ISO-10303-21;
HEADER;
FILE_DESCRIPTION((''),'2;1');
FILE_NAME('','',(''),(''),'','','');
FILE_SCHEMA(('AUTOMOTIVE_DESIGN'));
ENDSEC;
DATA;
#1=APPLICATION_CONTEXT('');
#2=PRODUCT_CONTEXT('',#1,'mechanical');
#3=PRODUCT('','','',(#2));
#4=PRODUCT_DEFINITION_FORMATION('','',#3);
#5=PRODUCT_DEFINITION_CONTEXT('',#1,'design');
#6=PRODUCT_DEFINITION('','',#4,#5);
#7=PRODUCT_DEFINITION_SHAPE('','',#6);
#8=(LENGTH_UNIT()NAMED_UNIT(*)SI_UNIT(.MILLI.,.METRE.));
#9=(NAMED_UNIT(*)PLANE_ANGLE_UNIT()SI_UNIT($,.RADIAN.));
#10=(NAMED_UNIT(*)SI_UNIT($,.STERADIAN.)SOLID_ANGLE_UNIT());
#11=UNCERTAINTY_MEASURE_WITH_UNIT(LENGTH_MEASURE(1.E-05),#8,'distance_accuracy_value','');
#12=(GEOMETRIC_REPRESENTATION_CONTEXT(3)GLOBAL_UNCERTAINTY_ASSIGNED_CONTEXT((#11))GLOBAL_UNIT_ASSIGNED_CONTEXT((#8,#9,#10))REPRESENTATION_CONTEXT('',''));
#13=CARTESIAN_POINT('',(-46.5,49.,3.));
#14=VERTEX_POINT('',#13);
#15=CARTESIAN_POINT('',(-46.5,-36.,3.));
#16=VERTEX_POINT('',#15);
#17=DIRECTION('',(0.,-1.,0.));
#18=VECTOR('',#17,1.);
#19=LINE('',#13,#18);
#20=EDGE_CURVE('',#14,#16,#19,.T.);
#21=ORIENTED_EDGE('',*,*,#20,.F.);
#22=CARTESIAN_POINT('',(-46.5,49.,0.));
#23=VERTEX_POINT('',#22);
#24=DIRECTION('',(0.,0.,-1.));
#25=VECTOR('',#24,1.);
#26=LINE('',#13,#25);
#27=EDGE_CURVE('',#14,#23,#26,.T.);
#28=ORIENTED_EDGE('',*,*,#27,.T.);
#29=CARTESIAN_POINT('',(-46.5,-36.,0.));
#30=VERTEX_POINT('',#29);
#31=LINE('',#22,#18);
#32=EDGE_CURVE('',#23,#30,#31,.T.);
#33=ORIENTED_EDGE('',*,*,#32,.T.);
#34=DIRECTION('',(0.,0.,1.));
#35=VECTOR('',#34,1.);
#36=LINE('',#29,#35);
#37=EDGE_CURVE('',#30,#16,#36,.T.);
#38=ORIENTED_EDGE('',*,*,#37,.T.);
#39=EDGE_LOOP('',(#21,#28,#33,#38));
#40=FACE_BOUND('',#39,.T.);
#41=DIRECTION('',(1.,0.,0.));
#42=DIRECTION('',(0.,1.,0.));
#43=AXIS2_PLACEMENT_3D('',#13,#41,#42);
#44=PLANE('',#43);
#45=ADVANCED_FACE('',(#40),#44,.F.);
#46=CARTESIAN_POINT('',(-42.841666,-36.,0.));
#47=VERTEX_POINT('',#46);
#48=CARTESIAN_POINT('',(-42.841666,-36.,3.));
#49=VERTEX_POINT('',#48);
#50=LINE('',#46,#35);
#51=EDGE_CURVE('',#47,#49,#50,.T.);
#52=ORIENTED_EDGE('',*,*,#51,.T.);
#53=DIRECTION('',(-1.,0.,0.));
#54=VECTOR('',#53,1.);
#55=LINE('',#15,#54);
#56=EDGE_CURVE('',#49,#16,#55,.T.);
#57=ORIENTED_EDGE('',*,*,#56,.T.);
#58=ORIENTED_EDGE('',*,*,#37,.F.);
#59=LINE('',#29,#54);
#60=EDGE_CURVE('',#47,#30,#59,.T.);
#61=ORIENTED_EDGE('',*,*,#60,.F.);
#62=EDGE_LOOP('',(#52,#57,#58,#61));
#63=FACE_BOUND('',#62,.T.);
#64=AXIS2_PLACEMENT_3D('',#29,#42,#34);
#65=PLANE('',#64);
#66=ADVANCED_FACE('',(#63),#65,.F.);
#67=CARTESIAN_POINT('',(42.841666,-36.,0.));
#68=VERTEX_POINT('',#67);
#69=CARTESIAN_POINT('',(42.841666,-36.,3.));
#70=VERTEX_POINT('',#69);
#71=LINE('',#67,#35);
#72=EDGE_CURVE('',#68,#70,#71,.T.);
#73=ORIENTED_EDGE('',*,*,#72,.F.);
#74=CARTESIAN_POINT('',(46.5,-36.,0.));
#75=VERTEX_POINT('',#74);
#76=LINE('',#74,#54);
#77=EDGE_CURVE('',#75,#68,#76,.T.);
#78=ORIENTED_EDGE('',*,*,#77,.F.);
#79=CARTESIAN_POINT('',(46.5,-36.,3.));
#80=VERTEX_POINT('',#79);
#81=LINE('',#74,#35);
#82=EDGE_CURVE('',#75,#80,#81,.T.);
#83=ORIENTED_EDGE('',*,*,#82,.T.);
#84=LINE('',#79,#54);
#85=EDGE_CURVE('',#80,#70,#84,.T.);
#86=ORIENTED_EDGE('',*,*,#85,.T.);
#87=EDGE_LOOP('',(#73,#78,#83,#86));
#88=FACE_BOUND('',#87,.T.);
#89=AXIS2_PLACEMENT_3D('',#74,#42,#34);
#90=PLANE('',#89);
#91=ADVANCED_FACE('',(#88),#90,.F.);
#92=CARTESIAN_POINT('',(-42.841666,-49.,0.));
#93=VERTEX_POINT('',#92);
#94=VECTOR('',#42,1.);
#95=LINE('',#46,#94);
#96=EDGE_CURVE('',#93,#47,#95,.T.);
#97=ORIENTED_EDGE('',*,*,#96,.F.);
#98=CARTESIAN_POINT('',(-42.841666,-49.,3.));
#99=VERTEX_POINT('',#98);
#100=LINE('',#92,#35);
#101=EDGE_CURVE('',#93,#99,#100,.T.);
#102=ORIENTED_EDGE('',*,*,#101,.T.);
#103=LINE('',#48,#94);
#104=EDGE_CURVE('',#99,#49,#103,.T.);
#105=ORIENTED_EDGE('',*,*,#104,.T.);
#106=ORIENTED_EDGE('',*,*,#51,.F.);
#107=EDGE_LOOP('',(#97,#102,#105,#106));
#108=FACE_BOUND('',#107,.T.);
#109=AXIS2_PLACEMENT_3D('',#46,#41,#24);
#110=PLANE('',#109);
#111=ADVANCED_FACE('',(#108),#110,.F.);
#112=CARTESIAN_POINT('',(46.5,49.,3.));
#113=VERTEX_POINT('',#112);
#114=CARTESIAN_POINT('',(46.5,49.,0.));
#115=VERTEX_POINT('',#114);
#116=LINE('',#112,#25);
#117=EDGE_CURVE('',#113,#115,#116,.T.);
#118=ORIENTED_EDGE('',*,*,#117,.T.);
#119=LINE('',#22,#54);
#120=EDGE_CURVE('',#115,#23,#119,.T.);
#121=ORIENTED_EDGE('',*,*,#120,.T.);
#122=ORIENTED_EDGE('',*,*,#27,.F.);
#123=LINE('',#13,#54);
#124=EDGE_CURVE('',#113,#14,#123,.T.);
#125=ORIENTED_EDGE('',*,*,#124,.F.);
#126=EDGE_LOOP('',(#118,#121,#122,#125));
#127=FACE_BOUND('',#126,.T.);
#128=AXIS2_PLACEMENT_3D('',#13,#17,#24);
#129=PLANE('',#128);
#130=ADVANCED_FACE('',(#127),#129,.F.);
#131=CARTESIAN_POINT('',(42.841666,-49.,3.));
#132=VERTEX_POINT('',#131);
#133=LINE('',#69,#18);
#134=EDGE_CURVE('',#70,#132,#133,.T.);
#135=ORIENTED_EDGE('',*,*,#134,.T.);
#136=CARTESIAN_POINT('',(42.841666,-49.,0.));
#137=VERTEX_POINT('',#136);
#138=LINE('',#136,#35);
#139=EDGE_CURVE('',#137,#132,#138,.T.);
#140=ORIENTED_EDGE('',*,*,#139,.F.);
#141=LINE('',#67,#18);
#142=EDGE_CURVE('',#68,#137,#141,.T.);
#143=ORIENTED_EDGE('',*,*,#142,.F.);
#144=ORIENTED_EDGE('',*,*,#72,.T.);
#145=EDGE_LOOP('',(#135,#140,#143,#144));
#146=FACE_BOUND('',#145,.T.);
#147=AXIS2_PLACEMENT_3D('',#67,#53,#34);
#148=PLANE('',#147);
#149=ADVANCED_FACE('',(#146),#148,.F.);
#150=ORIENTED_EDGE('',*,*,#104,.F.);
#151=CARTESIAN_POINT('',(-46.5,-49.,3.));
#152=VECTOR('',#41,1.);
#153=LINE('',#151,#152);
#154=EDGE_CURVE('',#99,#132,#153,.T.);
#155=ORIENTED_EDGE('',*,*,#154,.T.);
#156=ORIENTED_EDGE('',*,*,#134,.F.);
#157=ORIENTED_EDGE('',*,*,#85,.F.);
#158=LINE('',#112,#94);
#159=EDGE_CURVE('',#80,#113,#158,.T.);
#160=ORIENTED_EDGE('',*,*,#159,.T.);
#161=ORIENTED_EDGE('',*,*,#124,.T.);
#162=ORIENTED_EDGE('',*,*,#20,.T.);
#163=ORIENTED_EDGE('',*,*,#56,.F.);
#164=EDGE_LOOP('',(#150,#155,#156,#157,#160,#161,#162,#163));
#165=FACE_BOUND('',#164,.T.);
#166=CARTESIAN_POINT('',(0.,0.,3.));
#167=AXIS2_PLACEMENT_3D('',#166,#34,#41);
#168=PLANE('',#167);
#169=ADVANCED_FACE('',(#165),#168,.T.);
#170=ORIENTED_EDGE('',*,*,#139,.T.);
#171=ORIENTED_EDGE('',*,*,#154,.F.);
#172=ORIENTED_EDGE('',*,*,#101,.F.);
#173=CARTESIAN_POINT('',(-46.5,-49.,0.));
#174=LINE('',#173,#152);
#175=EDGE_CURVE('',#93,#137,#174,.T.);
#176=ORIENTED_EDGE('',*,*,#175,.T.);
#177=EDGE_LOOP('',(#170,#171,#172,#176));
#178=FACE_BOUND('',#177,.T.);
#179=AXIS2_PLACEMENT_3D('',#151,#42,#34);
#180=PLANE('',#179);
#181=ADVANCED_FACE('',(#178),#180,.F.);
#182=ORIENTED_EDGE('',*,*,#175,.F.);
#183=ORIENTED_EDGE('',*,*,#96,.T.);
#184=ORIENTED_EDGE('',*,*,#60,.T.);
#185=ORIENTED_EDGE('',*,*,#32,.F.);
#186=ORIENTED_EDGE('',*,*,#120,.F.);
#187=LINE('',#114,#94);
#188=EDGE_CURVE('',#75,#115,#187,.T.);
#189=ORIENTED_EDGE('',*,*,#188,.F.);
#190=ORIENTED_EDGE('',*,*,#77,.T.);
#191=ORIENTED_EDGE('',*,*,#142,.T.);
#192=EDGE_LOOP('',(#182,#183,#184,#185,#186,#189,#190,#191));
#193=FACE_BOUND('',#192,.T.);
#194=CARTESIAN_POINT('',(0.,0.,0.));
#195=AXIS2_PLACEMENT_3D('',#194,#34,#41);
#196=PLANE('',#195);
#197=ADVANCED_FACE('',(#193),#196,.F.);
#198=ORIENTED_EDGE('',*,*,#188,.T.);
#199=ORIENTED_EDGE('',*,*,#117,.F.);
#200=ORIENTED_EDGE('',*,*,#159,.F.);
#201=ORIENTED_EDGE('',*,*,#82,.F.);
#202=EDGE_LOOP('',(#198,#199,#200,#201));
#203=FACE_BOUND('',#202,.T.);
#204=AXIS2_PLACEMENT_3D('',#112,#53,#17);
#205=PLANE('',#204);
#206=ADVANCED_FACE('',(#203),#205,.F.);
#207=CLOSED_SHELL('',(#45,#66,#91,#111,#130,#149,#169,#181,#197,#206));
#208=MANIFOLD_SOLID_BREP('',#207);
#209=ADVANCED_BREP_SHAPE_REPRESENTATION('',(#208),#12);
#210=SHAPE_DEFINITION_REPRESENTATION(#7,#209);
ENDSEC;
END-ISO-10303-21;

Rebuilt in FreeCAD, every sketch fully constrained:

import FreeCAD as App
import Part
import Sketcher
from FreeCAD import Vector
Q = App.Units.Quantity


def add_polygon(sketch, points):
    """Adds a closed chain of lines whose ends are joined by coincident constraints."""
    first, n = sketch.GeometryCount, len(points)
    for a, b in zip(points, points[1:] + points[:1]):
        sketch.addGeometry(Part.LineSegment(App.Vector(*a, 0), App.Vector(*b, 0)), False)
    for i in range(n):
        sketch.addConstraint(Sketcher.Constraint("Coincident", first + i, 2, first + (i + 1) % n, 1))

doc = App.newDocument("Part")
body = doc.addObject("PartDesign::Body", "Body")

# Sketch on XY plane
sketch1 = body.newObject("Sketcher::SketchObject", "Sketch")
sketch1.AttachmentSupport = (doc.getObject("XY_Plane"), [""])
sketch1.MapMode = "FlatFace"
add_polygon(sketch1, [(-46.5, 49), (-46.5, -49), (46.5, -49), (46.5, 49)])  # lines 0-3
sketch1.addConstraint(Sketcher.Constraint("Vertical", 0))
sketch1.addConstraint(Sketcher.Constraint("Horizontal", 1))
sketch1.addConstraint(Sketcher.Constraint("Vertical", 2))
sketch1.addConstraint(Sketcher.Constraint("Horizontal", 3))
sketch1.addConstraint(Sketcher.Constraint("Symmetric", 0, 2, 2, 2, -1, 1))
sketch1.addConstraint(Sketcher.Constraint("DistanceX", 1, 1, 1, 2, Q("93 mm")))
sketch1.addConstraint(Sketcher.Constraint("DistanceY", 0, 2, 0, 1, Q("98 mm")))
pad1 = body.newObject("PartDesign::Pad", "Pad")
pad1.Profile = sketch1
pad1.Length = 3

# Sketch on XY plane
sketch2 = body.newObject("Sketcher::SketchObject", "Sketch001")
sketch2.AttachmentSupport = (doc.getObject("XY_Plane"), [""])
sketch2.MapMode = "FlatFace"
sketch2.AttachmentOffset = App.Placement(Vector(0, 0, 3), App.Rotation())
add_polygon(sketch2, [(-46.5, -36), (-46.5, -49), (-42.841666, -49), (-42.841666, -36)])  # lines 0-3
add_polygon(sketch2, [(42.841666, -36), (42.841666, -49), (46.5, -49), (46.5, -36)])  # lines 4-7
sketch2.addConstraint(Sketcher.Constraint("Vertical", 0))
sketch2.addConstraint(Sketcher.Constraint("Horizontal", 1))
sketch2.addConstraint(Sketcher.Constraint("Vertical", 2))
sketch2.addConstraint(Sketcher.Constraint("Horizontal", 3))
sketch2.addConstraint(Sketcher.Constraint("Vertical", 4))
sketch2.addConstraint(Sketcher.Constraint("Horizontal", 5))
sketch2.addConstraint(Sketcher.Constraint("Vertical", 6))
sketch2.addConstraint(Sketcher.Constraint("Horizontal", 7))
sketch2.addConstraint(Sketcher.Constraint("Symmetric", 1, 2, 4, 2, -2))
sketch2.addConstraint(Sketcher.Constraint("Symmetric", 3, 2, 6, 2, -2))
sketch2.addConstraint(Sketcher.Constraint("DistanceY", 0, 2, 0, 1, Q("13 mm")))
sketch2.addConstraint(Sketcher.Constraint("DistanceY", 0, 2, -1, 1, Q("49 mm")))
sketch2.addConstraint(Sketcher.Constraint("DistanceX", 0, 2, 5, 2, Q("93 mm")))
sketch2.addConstraint(Sketcher.Constraint("DistanceX", 1, 1, 1, 2, Q("3.658334 mm")))
pocket1 = body.newObject("PartDesign::Pocket", "Pocket")
pocket1.Profile = sketch2
pocket1.Length = 3

doc.recompute()
